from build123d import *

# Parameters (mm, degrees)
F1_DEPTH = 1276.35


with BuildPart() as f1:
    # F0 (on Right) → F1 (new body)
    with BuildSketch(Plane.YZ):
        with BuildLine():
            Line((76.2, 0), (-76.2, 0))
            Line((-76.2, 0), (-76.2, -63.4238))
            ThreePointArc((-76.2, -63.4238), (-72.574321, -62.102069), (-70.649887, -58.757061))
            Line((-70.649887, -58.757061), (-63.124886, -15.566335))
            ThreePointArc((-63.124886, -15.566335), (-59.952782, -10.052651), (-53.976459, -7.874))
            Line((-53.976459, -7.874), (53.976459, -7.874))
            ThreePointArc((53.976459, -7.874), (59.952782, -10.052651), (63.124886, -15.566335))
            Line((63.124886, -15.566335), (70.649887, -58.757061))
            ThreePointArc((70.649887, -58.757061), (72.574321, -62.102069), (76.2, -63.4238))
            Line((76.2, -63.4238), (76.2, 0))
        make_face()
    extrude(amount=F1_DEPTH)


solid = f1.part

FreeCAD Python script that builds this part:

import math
import FreeCAD as App
import Part
import Sketcher
from FreeCAD import Vector
Q = App.Units.Quantity

doc = App.newDocument("Part")
params = doc.addObject("Spreadsheet::Sheet", "Params")
for row, (alias, value) in enumerate([
    ("sketch1_width", "6 in"),
    ("sketch1_height", "2.497 in"),
    ("pad1_length", "50.25 in"),
], start=1):
    params.set(f"A{row}", alias)
    params.set(f"B{row}", "=" + value)
    params.setAlias(f"B{row}", alias)

body = doc.addObject("PartDesign::Body", "Body")

# Sketch on YZ plane
sketch1 = body.newObject("Sketcher::SketchObject", "Sketch")
sketch1.AttachmentSupport = (doc.getObject("YZ_Plane"), [""])
sketch1.MapMode = "FlatFace"
sketch1.addGeometry([
    Part.LineSegment(Vector(76, 0, 0), Vector(-76, 0, 0)),  # 0
    Part.LineSegment(Vector(-76, 0, 0), Vector(-76, -63, 0)),  # 1
    Part.ArcOfCircle(Part.Circle(Vector(-76, -58, 0), Vector(0, 0, 1), 6), math.radians(-90), math.radians(-10)),  # 2
    Part.LineSegment(Vector(-71, -59, 0), Vector(-63, -16, 0)),  # 3
    Part.ArcOfCircle(Part.Circle(Vector(-54, -17, 0), Vector(0, 0, 1), 9), math.radians(90), math.radians(170)),  # 4
    Part.LineSegment(Vector(-54, -8, 0), Vector(54, -8, 0)),  # 5
    Part.ArcOfCircle(Part.Circle(Vector(54, -17, 0), Vector(0, 0, 1), 9), math.radians(10), math.radians(90)),  # 6
    Part.LineSegment(Vector(63, -16, 0), Vector(71, -59, 0)),  # 7
    Part.ArcOfCircle(Part.Circle(Vector(76, -58, 0), Vector(0, 0, 1), 6), math.radians(-170), math.radians(-90)),  # 8
    Part.LineSegment(Vector(76, -63, 0), Vector(76, 0, 0)),  # 9
], False)
sketch1.addConstraint([
    Sketcher.Constraint("Coincident", 0, 2, 1, 1),
    Sketcher.Constraint("Coincident", 1, 2, 2, 1),
    Sketcher.Constraint("Tangent", 2, 2, 3, 1),
    Sketcher.Constraint("Tangent", 3, 2, 4, 2),
    Sketcher.Constraint("Tangent", 4, 1, 5, 1),
    Sketcher.Constraint("Tangent", 5, 2, 6, 2),
    Sketcher.Constraint("Tangent", 6, 1, 7, 1),
    Sketcher.Constraint("Tangent", 7, 2, 8, 1),
    Sketcher.Constraint("Coincident", 8, 2, 9, 1),
    Sketcher.Constraint("Coincident", 9, 2, 0, 1),
    Sketcher.Constraint("Horizontal", 0),
    Sketcher.Constraint("Vertical", 1),
    Sketcher.Constraint("Horizontal", 5),
    Sketcher.Constraint("Vertical", 9),
    Sketcher.Constraint("Equal", 4, 6),
    Sketcher.Constraint("Equal", 2, 8),
    Sketcher.Constraint("Symmetric", 0, 2, 9, 2, -1, 1),
    Sketcher.Constraint("Symmetric", 2, 3, 8, 3, -2),
    Sketcher.Constraint("Horizontal", 3, 2, 6, 1),
    Sketcher.Constraint("Vertical", 2, 3, 0, 2),
    Sketcher.Constraint("DistanceX", 0, 2, 0, 1, Q("6 in")),
    Sketcher.Constraint("Radius", 2, Q("0.2218001 in")),
    Sketcher.Constraint("Radius", 4, Q("0.3656 in")),
    Sketcher.Constraint("DistanceY", 1, 2, 1, 1, Q("2.497 in")),
    Sketcher.Constraint("DistanceY", 4, 1, -1, 1, Q("0.31 in")),
    Sketcher.Constraint("DistanceX", 2, 2, 3, 2, Q("7.525001 mm")),
])
sketch1.setExpression("Constraints[20]", "Params.sketch1_width")
sketch1.setExpression("Constraints[23]", "Params.sketch1_height")
pad1 = body.newObject("PartDesign::Pad", "Pad")
pad1.Profile = sketch1
pad1.setExpression("Length", "Params.pad1_length")

doc.recompute()
